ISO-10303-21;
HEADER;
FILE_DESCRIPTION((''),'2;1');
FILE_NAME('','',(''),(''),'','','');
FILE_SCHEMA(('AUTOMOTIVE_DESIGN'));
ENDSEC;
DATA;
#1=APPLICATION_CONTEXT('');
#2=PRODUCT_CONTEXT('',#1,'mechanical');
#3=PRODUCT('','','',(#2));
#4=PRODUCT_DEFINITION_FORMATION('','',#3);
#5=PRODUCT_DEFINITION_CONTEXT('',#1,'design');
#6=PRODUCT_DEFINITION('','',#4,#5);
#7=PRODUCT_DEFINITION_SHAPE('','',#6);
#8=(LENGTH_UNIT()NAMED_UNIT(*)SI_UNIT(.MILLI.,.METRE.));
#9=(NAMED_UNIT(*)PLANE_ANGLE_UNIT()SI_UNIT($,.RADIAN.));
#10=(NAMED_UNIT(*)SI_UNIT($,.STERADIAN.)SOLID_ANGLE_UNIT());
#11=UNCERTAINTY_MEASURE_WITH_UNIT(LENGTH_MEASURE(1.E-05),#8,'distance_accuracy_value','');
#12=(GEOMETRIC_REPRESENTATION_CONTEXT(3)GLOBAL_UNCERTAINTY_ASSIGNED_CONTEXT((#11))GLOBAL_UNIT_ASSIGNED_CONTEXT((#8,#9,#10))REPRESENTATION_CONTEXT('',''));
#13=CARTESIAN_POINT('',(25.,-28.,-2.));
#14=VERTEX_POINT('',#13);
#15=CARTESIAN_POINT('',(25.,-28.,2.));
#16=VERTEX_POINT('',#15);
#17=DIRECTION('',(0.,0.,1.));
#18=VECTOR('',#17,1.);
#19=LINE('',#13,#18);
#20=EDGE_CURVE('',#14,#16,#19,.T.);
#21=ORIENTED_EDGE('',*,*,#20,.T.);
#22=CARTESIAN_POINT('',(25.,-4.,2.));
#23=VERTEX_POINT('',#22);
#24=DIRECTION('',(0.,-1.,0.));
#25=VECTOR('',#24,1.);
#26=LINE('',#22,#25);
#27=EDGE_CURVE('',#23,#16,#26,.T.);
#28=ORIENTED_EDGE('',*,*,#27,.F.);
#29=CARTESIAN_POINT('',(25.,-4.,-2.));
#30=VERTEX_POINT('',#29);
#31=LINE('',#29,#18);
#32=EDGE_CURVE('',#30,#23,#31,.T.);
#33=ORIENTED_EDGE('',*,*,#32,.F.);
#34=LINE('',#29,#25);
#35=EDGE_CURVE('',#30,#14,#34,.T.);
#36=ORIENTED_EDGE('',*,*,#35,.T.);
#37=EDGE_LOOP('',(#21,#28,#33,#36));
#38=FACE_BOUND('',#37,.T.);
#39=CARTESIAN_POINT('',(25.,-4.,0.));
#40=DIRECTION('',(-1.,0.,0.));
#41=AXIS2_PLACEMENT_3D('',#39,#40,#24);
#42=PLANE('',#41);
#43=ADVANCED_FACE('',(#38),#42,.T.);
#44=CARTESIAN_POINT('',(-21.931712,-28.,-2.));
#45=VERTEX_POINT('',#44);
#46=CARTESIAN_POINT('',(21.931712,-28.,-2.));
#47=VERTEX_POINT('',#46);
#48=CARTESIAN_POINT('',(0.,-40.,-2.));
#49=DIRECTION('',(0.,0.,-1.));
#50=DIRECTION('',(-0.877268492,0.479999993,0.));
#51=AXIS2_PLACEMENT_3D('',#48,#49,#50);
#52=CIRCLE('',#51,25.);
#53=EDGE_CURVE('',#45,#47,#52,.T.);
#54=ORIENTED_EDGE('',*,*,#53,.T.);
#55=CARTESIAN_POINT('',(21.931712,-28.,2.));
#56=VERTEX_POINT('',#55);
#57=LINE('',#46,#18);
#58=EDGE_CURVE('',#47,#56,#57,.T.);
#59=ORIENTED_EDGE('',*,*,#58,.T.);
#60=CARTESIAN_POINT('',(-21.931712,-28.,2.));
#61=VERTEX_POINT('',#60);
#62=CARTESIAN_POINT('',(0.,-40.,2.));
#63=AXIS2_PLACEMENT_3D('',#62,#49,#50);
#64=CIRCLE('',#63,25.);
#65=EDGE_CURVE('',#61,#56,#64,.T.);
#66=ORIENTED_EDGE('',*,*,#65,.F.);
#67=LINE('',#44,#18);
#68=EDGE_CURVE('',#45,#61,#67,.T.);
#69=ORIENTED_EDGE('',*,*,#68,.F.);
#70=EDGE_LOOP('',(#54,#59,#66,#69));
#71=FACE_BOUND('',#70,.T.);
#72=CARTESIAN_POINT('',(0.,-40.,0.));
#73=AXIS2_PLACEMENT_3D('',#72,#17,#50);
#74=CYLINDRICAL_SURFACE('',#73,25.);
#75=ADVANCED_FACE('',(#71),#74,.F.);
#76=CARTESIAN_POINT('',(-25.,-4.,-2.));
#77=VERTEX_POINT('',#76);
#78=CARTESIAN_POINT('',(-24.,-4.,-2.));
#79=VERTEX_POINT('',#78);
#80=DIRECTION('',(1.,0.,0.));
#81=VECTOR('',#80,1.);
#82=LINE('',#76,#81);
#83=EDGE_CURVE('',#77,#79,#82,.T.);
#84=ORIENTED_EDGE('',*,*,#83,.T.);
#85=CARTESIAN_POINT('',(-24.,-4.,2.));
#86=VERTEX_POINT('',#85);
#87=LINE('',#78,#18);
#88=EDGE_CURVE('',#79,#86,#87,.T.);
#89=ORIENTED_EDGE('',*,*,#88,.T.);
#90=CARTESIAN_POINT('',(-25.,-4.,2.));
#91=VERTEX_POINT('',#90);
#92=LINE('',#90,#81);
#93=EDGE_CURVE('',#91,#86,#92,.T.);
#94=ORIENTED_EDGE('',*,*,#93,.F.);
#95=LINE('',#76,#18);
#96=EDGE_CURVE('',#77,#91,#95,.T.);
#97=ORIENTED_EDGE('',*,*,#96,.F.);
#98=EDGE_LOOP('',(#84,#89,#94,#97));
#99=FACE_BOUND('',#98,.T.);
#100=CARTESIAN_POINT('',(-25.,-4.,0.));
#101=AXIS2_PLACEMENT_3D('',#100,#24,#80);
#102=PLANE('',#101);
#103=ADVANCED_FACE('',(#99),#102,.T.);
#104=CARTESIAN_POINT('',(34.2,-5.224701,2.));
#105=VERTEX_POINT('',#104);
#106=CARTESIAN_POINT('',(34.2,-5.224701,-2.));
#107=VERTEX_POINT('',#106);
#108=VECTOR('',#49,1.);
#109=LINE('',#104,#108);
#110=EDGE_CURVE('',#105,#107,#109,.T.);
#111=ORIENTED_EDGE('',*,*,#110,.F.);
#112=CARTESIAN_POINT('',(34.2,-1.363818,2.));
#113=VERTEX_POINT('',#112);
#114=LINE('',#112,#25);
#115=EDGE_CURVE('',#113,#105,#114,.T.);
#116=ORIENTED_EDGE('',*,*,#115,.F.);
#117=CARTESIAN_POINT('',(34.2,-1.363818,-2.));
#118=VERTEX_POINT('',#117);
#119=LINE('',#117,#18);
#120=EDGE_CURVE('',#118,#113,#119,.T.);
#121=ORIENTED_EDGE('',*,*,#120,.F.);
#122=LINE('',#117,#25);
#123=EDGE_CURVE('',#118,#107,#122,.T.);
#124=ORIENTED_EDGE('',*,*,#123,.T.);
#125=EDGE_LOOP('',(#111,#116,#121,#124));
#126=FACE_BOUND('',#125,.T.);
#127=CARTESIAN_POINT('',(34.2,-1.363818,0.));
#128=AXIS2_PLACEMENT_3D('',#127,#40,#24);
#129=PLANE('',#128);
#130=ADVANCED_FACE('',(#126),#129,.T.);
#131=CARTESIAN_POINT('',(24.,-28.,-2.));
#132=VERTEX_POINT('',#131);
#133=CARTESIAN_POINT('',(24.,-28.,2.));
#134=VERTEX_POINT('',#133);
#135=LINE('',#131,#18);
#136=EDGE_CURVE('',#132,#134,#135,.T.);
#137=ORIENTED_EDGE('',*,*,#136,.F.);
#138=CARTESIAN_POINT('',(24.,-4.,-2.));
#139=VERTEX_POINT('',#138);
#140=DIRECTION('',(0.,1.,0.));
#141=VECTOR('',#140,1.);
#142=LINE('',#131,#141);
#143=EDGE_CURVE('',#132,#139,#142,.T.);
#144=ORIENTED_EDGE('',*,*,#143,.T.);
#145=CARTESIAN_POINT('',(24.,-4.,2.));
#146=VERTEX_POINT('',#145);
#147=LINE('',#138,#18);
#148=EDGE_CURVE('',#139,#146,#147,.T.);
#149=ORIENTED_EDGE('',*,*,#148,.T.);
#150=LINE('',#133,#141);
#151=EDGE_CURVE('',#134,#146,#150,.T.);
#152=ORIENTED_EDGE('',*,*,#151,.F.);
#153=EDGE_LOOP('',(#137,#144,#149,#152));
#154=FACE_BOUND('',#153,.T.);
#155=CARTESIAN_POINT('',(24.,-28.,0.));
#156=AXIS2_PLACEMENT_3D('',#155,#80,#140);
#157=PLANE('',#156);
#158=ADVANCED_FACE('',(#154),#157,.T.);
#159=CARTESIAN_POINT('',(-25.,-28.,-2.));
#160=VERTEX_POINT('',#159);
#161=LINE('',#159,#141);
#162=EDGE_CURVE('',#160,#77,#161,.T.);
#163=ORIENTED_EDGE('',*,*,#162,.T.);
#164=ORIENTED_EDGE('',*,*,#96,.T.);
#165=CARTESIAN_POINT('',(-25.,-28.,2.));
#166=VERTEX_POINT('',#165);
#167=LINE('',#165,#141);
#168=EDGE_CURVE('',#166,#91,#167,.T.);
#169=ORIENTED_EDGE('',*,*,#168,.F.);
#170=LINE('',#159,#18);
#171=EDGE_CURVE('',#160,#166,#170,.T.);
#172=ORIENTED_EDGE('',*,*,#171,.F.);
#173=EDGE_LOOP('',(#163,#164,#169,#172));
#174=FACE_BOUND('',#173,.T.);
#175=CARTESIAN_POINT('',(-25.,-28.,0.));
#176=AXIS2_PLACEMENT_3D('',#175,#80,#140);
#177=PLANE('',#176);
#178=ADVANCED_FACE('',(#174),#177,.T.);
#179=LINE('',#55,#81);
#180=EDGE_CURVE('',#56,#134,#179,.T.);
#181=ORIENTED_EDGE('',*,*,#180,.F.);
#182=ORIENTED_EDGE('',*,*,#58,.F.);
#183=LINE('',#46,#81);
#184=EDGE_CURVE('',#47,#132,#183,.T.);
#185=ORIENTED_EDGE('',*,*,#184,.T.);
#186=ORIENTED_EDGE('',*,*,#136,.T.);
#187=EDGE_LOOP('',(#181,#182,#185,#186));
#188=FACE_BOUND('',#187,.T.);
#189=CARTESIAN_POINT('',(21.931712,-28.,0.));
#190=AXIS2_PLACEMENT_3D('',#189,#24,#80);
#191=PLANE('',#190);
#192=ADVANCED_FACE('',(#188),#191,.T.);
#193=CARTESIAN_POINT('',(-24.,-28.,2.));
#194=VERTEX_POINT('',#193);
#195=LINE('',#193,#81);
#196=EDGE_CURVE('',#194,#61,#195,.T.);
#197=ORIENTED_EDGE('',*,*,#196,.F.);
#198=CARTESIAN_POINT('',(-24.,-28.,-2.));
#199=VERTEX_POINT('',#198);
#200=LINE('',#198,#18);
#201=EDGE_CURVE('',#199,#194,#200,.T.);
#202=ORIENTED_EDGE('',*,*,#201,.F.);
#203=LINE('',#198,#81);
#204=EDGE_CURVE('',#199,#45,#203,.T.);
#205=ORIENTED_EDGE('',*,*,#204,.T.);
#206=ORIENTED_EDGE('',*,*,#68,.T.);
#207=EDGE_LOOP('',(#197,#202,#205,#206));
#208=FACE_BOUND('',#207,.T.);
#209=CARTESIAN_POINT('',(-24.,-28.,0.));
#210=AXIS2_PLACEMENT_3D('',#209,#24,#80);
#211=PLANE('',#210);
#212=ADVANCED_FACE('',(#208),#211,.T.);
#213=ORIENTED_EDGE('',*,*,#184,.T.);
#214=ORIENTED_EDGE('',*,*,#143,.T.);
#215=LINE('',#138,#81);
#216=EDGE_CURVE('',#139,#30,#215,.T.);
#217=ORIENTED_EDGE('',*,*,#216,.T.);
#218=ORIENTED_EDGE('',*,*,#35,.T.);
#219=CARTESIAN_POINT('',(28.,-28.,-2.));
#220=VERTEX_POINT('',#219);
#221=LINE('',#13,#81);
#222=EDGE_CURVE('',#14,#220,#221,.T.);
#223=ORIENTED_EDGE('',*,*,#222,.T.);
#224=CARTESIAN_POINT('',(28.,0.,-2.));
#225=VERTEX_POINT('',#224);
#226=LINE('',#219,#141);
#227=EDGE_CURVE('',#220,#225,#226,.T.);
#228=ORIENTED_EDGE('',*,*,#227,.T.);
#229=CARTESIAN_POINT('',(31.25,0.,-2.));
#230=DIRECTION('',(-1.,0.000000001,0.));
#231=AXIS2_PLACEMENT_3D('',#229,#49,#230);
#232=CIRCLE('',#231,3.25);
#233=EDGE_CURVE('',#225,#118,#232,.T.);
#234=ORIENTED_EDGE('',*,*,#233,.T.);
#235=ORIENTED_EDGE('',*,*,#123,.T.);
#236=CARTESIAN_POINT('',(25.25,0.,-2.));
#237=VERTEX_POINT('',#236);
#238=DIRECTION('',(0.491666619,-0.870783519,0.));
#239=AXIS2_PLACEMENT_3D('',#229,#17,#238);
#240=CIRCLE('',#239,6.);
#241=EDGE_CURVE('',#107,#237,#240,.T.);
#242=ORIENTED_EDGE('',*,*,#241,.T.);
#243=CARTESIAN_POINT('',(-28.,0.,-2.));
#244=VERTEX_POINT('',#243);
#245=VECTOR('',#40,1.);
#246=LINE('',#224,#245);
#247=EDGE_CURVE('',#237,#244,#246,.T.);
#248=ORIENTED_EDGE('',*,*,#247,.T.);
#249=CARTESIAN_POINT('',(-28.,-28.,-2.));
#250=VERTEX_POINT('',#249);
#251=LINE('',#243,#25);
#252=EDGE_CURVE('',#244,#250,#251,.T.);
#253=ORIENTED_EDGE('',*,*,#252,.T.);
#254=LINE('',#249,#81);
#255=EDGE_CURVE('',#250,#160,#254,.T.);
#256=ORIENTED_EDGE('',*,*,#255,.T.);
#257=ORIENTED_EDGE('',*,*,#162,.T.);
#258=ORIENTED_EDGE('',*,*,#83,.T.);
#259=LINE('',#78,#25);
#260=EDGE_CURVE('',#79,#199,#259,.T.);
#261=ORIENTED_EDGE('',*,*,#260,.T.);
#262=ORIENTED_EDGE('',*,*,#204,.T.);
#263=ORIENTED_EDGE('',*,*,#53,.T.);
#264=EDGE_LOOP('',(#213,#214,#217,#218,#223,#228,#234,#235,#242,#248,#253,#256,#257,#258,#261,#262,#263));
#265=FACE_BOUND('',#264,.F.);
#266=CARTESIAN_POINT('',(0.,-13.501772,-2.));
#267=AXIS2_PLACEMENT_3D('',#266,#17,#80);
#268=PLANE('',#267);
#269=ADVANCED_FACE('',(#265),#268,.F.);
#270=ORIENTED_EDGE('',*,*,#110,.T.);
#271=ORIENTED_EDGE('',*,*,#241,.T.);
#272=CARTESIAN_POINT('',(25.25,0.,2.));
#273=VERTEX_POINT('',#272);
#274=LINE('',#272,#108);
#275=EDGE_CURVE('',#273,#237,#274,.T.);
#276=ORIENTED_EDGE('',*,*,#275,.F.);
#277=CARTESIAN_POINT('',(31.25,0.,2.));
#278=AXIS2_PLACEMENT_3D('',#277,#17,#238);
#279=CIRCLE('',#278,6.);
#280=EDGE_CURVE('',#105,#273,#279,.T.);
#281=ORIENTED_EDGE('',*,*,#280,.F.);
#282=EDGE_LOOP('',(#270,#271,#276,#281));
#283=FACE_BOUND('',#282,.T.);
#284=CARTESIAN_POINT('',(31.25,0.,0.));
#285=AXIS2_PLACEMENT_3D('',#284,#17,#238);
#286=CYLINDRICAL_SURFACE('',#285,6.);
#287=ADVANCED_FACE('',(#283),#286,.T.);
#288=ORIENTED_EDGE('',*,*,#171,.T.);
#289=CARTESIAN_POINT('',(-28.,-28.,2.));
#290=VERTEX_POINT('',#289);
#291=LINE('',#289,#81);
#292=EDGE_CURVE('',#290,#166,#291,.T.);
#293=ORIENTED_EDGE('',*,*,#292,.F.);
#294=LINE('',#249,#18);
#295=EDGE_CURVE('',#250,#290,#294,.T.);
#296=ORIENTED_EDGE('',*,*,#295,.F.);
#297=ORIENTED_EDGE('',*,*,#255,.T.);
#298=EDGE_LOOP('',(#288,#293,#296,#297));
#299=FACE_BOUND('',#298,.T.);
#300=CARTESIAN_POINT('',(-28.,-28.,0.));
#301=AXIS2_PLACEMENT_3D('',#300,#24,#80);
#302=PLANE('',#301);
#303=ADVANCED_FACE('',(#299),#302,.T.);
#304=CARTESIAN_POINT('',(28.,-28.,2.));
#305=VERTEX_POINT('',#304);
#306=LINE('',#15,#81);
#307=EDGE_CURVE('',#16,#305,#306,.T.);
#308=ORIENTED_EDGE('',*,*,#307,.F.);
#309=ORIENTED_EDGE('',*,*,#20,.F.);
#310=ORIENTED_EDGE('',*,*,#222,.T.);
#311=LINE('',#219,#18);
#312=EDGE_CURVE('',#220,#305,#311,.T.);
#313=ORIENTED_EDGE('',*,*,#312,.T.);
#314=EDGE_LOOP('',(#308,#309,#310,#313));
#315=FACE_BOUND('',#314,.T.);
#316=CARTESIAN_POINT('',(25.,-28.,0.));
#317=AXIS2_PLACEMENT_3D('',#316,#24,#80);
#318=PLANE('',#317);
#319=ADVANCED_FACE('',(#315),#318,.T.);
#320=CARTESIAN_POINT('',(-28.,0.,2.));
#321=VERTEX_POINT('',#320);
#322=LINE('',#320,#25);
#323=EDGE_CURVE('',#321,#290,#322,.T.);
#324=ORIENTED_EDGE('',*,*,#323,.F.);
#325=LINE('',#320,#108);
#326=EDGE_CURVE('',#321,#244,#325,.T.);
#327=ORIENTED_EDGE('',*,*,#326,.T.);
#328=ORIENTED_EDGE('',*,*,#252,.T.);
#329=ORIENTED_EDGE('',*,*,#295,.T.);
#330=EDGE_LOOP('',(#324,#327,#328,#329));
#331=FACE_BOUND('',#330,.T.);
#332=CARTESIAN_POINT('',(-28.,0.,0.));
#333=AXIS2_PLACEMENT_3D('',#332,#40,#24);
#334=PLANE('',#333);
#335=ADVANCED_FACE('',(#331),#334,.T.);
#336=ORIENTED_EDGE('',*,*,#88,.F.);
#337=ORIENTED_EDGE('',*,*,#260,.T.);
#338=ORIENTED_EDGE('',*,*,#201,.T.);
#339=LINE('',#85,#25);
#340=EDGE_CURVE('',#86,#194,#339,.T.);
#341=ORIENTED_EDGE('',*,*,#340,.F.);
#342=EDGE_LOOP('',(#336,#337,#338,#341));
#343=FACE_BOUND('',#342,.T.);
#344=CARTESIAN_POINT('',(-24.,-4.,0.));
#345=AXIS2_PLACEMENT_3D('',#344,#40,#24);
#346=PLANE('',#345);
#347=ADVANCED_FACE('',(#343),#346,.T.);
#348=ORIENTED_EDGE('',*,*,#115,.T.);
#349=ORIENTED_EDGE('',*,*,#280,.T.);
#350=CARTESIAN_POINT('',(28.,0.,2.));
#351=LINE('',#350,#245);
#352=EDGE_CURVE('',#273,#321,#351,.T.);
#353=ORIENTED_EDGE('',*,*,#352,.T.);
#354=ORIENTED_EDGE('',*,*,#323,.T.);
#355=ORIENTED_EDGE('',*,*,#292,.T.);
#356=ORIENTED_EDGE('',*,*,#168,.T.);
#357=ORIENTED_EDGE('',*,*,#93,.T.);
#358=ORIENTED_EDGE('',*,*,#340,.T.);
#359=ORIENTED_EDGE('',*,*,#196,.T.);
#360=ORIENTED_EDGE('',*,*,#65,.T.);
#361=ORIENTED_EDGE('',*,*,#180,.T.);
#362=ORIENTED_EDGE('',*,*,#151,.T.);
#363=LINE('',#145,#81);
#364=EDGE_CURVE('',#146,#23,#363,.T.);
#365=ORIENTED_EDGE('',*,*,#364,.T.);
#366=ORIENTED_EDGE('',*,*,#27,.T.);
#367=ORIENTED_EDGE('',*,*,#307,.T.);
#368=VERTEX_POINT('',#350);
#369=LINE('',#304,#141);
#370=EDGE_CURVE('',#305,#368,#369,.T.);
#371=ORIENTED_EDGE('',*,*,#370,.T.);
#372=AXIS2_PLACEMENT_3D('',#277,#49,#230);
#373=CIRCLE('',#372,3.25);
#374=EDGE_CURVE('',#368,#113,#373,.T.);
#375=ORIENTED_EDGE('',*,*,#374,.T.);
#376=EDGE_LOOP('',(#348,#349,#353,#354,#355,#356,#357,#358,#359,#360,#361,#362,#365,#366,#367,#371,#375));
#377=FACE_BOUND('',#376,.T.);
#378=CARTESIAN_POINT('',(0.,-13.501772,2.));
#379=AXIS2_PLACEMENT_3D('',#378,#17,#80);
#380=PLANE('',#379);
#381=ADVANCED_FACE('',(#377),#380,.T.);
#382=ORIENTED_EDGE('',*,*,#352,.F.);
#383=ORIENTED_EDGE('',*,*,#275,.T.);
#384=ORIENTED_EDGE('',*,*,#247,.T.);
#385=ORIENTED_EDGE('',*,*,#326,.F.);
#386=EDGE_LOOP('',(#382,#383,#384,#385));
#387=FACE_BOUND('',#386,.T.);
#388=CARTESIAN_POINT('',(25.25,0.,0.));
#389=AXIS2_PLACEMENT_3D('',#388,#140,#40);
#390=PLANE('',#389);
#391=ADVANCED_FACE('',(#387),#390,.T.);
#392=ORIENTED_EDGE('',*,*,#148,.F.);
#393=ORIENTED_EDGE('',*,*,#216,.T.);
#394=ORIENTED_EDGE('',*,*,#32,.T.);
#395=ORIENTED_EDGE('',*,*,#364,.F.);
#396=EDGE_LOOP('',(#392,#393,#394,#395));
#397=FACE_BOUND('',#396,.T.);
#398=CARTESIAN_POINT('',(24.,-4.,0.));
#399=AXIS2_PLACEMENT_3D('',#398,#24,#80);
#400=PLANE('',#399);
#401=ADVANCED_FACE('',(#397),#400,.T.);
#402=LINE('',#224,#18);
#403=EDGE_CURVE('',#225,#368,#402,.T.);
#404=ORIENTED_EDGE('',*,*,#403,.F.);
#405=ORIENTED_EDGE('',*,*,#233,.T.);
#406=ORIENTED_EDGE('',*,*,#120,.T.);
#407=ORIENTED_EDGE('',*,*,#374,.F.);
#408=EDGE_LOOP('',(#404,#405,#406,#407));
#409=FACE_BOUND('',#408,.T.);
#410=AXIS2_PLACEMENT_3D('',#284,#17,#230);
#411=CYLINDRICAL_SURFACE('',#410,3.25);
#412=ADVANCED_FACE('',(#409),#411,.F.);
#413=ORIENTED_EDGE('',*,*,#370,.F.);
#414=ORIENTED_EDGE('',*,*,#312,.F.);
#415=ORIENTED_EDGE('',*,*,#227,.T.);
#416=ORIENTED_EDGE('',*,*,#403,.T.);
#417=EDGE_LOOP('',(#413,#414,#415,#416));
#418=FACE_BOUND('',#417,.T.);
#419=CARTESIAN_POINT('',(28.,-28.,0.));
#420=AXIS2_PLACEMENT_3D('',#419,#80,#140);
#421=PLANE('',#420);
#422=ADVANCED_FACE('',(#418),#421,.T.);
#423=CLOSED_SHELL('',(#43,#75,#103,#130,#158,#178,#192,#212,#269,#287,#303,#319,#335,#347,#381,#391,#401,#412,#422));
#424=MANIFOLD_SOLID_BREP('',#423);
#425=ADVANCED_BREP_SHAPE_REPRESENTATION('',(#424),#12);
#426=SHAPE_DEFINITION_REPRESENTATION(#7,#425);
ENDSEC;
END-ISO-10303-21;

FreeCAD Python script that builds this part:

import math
import FreeCAD as App
import Part
import Sketcher
Q = App.Units.Quantity

doc = App.newDocument("Part")
body = doc.addObject("PartDesign::Body", "Body")

# Sketch on XY plane
sketch1 = body.newObject("Sketcher::SketchObject", "Sketch")
sketch1.AttachmentSupport = (doc.getObject("XY_Plane"), [""])
sketch1.MapMode = "FlatFace"
sketch1.addGeometry([
    Part.LineSegment(App.Vector(-28, 0, 0), App.Vector(-28, -28, 0)),  # 0
    Part.LineSegment(App.Vector(-28, -28, 0), App.Vector(-25, -28, 0)),  # 1
    Part.LineSegment(App.Vector(-25, -28, 0), App.Vector(-25, -4, 0)),  # 2
    Part.LineSegment(App.Vector(-25, -4, 0), App.Vector(-24, -4, 0)),  # 3
    Part.LineSegment(App.Vector(-24, -4, 0), App.Vector(-24, -28, 0)),  # 4
    Part.LineSegment(App.Vector(-24, -28, 0), App.Vector(-21.9, -28, 0)),  # 5
    Part.ArcOfCircle(Part.Circle(App.Vector(0, -40, 0), App.Vector(0, 0, 1), 25), math.radians(29), math.radians(151)),  # 6
    Part.LineSegment(App.Vector(21.9, -28, 0), App.Vector(24, -28, 0)),  # 7
    Part.LineSegment(App.Vector(24, -28, 0), App.Vector(24, -4, 0)),  # 8
    Part.LineSegment(App.Vector(24, -4, 0), App.Vector(25, -4, 0)),  # 9
    Part.LineSegment(App.Vector(25, -4, 0), App.Vector(25, -28, 0)),  # 10
    Part.LineSegment(App.Vector(25, -28, 0), App.Vector(28, -28, 0)),  # 11
    Part.LineSegment(App.Vector(28, -28, 0), App.Vector(28, 0, 0)),  # 12
    Part.ArcOfCircle(Part.Circle(App.Vector(31.2, 0, 0), App.Vector(0, 0, 1), 3.2), math.radians(-25), math.radians(180)),  # 13
    Part.LineSegment(App.Vector(34.2, -1.4, 0), App.Vector(34.2, -5.2, 0)),  # 14
    Part.ArcOfCircle(Part.Circle(App.Vector(31.3, 0, 0), App.Vector(0, 0, 1), 6), math.radians(-61), math.radians(180)),  # 15
    Part.LineSegment(App.Vector(25.2, 0, 0), App.Vector(-28, 0, 0)),  # 16
], False)
sketch1.addConstraint([
    Sketcher.Constraint("Coincident", 0, 2, 1, 1),
    Sketcher.Constraint("Coincident", 1, 2, 2, 1),
    Sketcher.Constraint("Coincident", 2, 2, 3, 1),
    Sketcher.Constraint("Coincident", 3, 2, 4, 1),
    Sketcher.Constraint("Coincident", 4, 2, 5, 1),
    Sketcher.Constraint("Coincident", 5, 2, 6, 2),
    Sketcher.Constraint("Coincident", 6, 1, 7, 1),
    Sketcher.Constraint("Coincident", 7, 2, 8, 1),
    Sketcher.Constraint("Coincident", 8, 2, 9, 1),
    Sketcher.Constraint("Coincident", 9, 2, 10, 1),
    Sketcher.Constraint("Coincident", 10, 2, 11, 1),
    Sketcher.Constraint("Coincident", 11, 2, 12, 1),
    Sketcher.Constraint("Tangent", 12, 2, 13, 2),
    Sketcher.Constraint("Coincident", 13, 1, 14, 1),
    Sketcher.Constraint("Coincident", 14, 2, 15, 1),
    Sketcher.Constraint("Coincident", 15, 2, 16, 1),
    Sketcher.Constraint("Coincident", 16, 2, 0, 1),
    Sketcher.Constraint("Vertical", 0),
    Sketcher.Constraint("Horizontal", 1),
    Sketcher.Constraint("Vertical", 2),
    Sketcher.Constraint("Horizontal", 3),
    Sketcher.Constraint("Vertical", 4),
    Sketcher.Constraint("Horizontal", 5),
    Sketcher.Constraint("Horizontal", 7),
    Sketcher.Constraint("Vertical", 8),
    Sketcher.Constraint("Horizontal", 9),
    Sketcher.Constraint("Vertical", 10),
    Sketcher.Constraint("Horizontal", 11),
    Sketcher.Constraint("Vertical", 12),
    Sketcher.Constraint("Vertical", 14),
    Sketcher.Constraint("Horizontal", 16),
    Sketcher.Constraint("Coincident", 15, 3, 13, 3),
    Sketcher.Constraint("Symmetric", 12, 2, 16, 2, -1, 1),
    Sketcher.Constraint("Symmetric", 5, 2, 6, 1, -2),
    Sketcher.Constraint("Symmetric", 3, 2, 8, 2, -2),
    Sketcher.Constraint("Symmetric", 1, 2, 10, 2, -2),
    Sketcher.Constraint("PointOnObject", 13, 3, -1),
    Sketcher.Constraint("Horizontal", 1, 2, 4, 2),
    Sketcher.Constraint("Radius", 6, Q("25 mm")),
    Sketcher.Constraint("Radius", 15, Q("6 mm")),
    Sketcher.Constraint("DistanceX", 1, 1, 1, 2, Q("3 mm")),
    Sketcher.Constraint("DistanceX", 3, 1, 3, 2, Q("1 mm")),
    Sketcher.Constraint("DistanceY", 0, 2, 0, 1, Q("28 mm")),
    Sketcher.Constraint("DistanceY", 2, 1, 2, 2, Q("24 mm")),
    Sketcher.Constraint("Radius", 13, Q("3.25 mm")),
    Sketcher.Constraint("DistanceY", 6, 3, -1, 1, Q("40 mm")),
    Sketcher.Constraint("DistanceX", 0, 2, -1, 1, Q("28 mm")),
    Sketcher.Constraint("DistanceX", -1, 1, 13, 1, Q("34.2 mm")),
])
pad1 = body.newObject("PartDesign::Pad", "Pad")
pad1.Profile = sketch1
pad1.Length = 4
pad1.Midplane = True

doc.recompute()
